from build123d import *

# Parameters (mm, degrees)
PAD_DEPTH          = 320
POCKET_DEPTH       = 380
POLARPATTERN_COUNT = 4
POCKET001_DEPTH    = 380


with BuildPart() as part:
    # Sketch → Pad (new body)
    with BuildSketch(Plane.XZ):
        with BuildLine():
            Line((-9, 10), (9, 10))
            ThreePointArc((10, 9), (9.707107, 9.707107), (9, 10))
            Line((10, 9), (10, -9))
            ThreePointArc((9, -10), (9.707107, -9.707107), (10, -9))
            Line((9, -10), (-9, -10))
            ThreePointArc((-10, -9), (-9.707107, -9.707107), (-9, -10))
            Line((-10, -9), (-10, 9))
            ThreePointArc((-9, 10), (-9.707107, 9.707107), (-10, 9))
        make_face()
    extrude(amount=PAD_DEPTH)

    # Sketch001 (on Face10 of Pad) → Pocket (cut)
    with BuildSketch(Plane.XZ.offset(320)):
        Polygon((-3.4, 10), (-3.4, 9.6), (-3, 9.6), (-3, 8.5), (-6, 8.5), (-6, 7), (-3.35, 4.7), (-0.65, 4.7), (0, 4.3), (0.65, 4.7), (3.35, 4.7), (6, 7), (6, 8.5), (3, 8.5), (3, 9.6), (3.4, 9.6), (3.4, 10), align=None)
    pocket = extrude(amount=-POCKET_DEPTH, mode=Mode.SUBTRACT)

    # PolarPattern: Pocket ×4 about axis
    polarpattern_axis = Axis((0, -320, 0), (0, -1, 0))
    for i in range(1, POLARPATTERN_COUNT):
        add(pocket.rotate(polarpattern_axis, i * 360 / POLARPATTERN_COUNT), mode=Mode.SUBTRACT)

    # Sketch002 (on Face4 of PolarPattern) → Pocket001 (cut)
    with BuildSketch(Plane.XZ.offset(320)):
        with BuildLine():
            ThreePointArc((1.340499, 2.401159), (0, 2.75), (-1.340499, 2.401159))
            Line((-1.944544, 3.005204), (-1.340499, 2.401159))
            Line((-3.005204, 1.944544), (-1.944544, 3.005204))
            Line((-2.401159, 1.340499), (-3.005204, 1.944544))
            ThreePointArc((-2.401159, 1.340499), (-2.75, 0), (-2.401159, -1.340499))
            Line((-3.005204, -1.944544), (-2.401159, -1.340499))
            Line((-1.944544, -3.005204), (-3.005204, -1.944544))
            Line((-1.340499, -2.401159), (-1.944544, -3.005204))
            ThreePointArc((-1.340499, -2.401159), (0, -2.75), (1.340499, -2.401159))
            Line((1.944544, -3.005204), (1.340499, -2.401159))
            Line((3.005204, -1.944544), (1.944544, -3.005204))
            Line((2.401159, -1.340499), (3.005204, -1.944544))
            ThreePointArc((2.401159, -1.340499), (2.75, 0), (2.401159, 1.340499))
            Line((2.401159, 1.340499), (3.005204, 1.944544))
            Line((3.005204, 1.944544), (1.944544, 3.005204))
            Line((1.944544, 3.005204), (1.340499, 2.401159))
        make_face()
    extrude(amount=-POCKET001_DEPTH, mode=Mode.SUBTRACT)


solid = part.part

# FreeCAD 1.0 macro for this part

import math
import FreeCAD as App
import Part
import Sketcher


def add_polygon(sketch, points):
    """Adds a closed chain of lines whose ends are joined by coincident constraints."""
    first, n = sketch.GeometryCount, len(points)
    for a, b in zip(points, points[1:] + points[:1]):
        sketch.addGeometry(Part.LineSegment(App.Vector(*a, 0), App.Vector(*b, 0)), False)
    for i in range(n):
        sketch.addConstraint(Sketcher.Constraint("Coincident", first + i, 2, first + (i + 1) % n, 1))

doc = App.newDocument("Part")
body = doc.addObject("PartDesign::Body", "Body")

# Sketch on XZ plane
sketch1 = body.newObject("Sketcher::SketchObject", "Sketch")
sketch1.AttachmentSupport = (doc.getObject("XZ_Plane"), [""])
sketch1.MapMode = "FlatFace"
sketch1.addGeometry(Part.LineSegment(App.Vector(9, 10, 0), App.Vector(-9, 10, 0)), False)
sketch1.addGeometry(Part.ArcOfCircle(Part.Circle(App.Vector(-9.000001, 9.000001, 0), App.Vector(0, 0, 1), 0.999999), math.radians(89.999957), math.radians(180.000043)), False)
sketch1.addGeometry(Part.LineSegment(App.Vector(-10, 9, 0), App.Vector(-10, -9, 0)), False)
sketch1.addGeometry(Part.ArcOfCircle(Part.Circle(App.Vector(-9.000001, -9.000001, 0), App.Vector(0, 0, 1), 0.999999), math.radians(179.999957), math.radians(270.000043)), False)
sketch1.addGeometry(Part.LineSegment(App.Vector(-9, -10, 0), App.Vector(9, -10, 0)), False)
sketch1.addGeometry(Part.ArcOfCircle(Part.Circle(App.Vector(9.000001, -9.000001, 0), App.Vector(0, 0, 1), 0.999999), math.radians(-90.000043), math.radians(0.000043)), False)
sketch1.addGeometry(Part.LineSegment(App.Vector(10, -9, 0), App.Vector(10, 9, 0)), False)
sketch1.addGeometry(Part.ArcOfCircle(Part.Circle(App.Vector(9.000001, 9.000001, 0), App.Vector(0, 0, 1), 0.999999), math.radians(-0.000043), math.radians(90.000043)), False)
sketch1.addConstraint(Sketcher.Constraint("Tangent", 0, 2, 1, 1))
sketch1.addConstraint(Sketcher.Constraint("Tangent", 1, 2, 2, 1))
sketch1.addConstraint(Sketcher.Constraint("Tangent", 2, 2, 3, 1))
sketch1.addConstraint(Sketcher.Constraint("Tangent", 3, 2, 4, 1))
sketch1.addConstraint(Sketcher.Constraint("Tangent", 4, 2, 5, 1))
sketch1.addConstraint(Sketcher.Constraint("Tangent", 5, 2, 6, 1))
sketch1.addConstraint(Sketcher.Constraint("Tangent", 6, 2, 7, 1))
sketch1.addConstraint(Sketcher.Constraint("Tangent", 7, 2, 0, 1))
sketch1.addConstraint(Sketcher.Constraint("Horizontal", 0))
sketch1.addConstraint(Sketcher.Constraint("Vertical", 2))
sketch1.addConstraint(Sketcher.Constraint("Horizontal", 4))
sketch1.addConstraint(Sketcher.Constraint("Vertical", 6))
sketch1.addConstraint(Sketcher.Constraint("Equal", 1, 3))
sketch1.addConstraint(Sketcher.Constraint("Equal", 3, 5))
sketch1.addConstraint(Sketcher.Constraint("Equal", 5, 7))
sketch1.addConstraint(Sketcher.Constraint("Symmetric", 1, 3, 5, 3, -1, 1))
sketch1.addConstraint(Sketcher.Constraint("Equal", 4, 2))
sketch1.addConstraint(Sketcher.Constraint("Radius", 1, 0.999999))
sketch1.addConstraint(Sketcher.Constraint("DistanceX", 0, 2, 0, 1, 18.0))
pad1 = body.newObject("PartDesign::Pad", "Pad")
pad1.Profile = sketch1
pad1.Length = 320

# Sketch on XZ plane
sketch2 = body.newObject("Sketcher::SketchObject", "Sketch001")
sketch2.AttachmentSupport = (doc.getObject("XZ_Plane"), [""])
sketch2.MapMode = "FlatFace"
sketch2.AttachmentOffset = App.Placement(App.Vector(0, 0, 320), App.Rotation())
add_polygon(sketch2, [(-3.4, 10), (-3.4, 9.6), (-3, 9.6), (-3, 8.5), (-6, 8.5), (-6, 7), (-3.35, 4.7), (-0.65, 4.7), (0, 4.3), (0.65, 4.7), (3.35, 4.7), (6, 7), (6, 8.5), (3, 8.5), (3, 9.6), (3.4, 9.6), (3.4, 10)])  # lines 0-16
sketch2.addConstraint(Sketcher.Constraint("Vertical", 0))
sketch2.addConstraint(Sketcher.Constraint("Horizontal", 1))
sketch2.addConstraint(Sketcher.Constraint("Vertical", 2))
sketch2.addConstraint(Sketcher.Constraint("Horizontal", 3))
sketch2.addConstraint(Sketcher.Constraint("Vertical", 4))
sketch2.addConstraint(Sketcher.Constraint("Horizontal", 6))
sketch2.addConstraint(Sketcher.Constraint("Horizontal", 9))
sketch2.addConstraint(Sketcher.Constraint("Vertical", 11))
sketch2.addConstraint(Sketcher.Constraint("Horizontal", 12))
sketch2.addConstraint(Sketcher.Constraint("Vertical", 13))
sketch2.addConstraint(Sketcher.Constraint("Horizontal", 14))
sketch2.addConstraint(Sketcher.Constraint("Vertical", 15))
sketch2.addConstraint(Sketcher.Constraint("Horizontal", 16))
sketch2.addConstraint(Sketcher.Constraint("Symmetric", 6, 2, 8, 2, -2))
sketch2.addConstraint(Sketcher.Constraint("Symmetric", 4, 2, 10, 2, -2))
sketch2.addConstraint(Sketcher.Constraint("Symmetric", 2, 2, 12, 2, -2))
sketch2.addConstraint(Sketcher.Constraint("Symmetric", 0, 2, 14, 2, -2))
sketch2.addConstraint(Sketcher.Constraint("PointOnObject", 7, 2, -2))
sketch2.addConstraint(Sketcher.Constraint("Equal", 6, 9))
sketch2.addConstraint(Sketcher.Constraint("Equal", 14, 0))
sketch2.addConstraint(Sketcher.Constraint("DistanceX", 3, 2, 3, 1, 3.0))
sketch2.addConstraint(Sketcher.Constraint("DistanceX", 1, 1, 1, 2, 0.4))
sketch2.addConstraint(Sketcher.Constraint("DistanceX", 6, 1, 6, 2, 2.7))
sketch2.addConstraint(Sketcher.Constraint("DistanceX", 16, 2, 16, 1, 6.8))
sketch2.addConstraint(Sketcher.Constraint("DistanceY", 2, 2, 2, 1, 1.1))
sketch2.addConstraint(Sketcher.Constraint("DistanceY", 4, 2, 4, 1, 1.5))
sketch2.addConstraint(Sketcher.Constraint("DistanceY", -1, 1, 4, 2, 7.0))
sketch2.addConstraint(Sketcher.Constraint("DistanceX", 5, 2, 8, 2, 4.0))
sketch2.addConstraint(Sketcher.Constraint("DistanceY", -1, 1, 5, 2, 4.7))
sketch2.addConstraint(Sketcher.Constraint("DistanceY", -1, 1, 7, 2, 4.3))
pocket1 = body.newObject("PartDesign::Pocket", "Pocket")
pocket1.Profile = sketch2
pocket1.Length = 380
doc.recompute()

polarpattern = body.newObject("PartDesign::PolarPattern", "PolarPattern")
polarpattern.Originals = [pocket1]
polarpattern.Axis = (doc.getObject("Y_Axis"), [""])
polarpattern.Angle = 360
polarpattern.Occurrences = 4
body.Tip = polarpattern

# Sketch on XZ plane
sketch3 = body.newObject("Sketcher::SketchObject", "Sketch002")
sketch3.AttachmentSupport = (doc.getObject("XZ_Plane"), [""])
sketch3.MapMode = "FlatFace"
sketch3.AttachmentOffset = App.Placement(App.Vector(0, 0, 320), App.Rotation())
sketch3.addGeometry(Part.ArcOfCircle(Part.Circle(App.Vector(0, -0.000003, 0), App.Vector(0, 0, 1), 2.750003), math.radians(60.826646), math.radians(119.173354)), False)
sketch3.addGeometry(Part.LineSegment(App.Vector(-1.340499, 2.401159, 0), App.Vector(-1.944544, 3.005204, 0)), False)
sketch3.addGeometry(Part.LineSegment(App.Vector(-1.944544, 3.005204, 0), App.Vector(-3.005204, 1.944544, 0)), False)
sketch3.addGeometry(Part.LineSegment(App.Vector(-3.005204, 1.944544, 0), App.Vector(-2.401159, 1.340499, 0)), False)
sketch3.addGeometry(Part.ArcOfCircle(Part.Circle(App.Vector(0.000003, 0, 0), App.Vector(0, 0, 1), 2.750003), math.radians(150.826646), math.radians(209.173354)), False)
sketch3.addGeometry(Part.LineSegment(App.Vector(-2.401159, -1.340499, 0), App.Vector(-3.005204, -1.944544, 0)), False)
sketch3.addGeometry(Part.LineSegment(App.Vector(-3.005204, -1.944544, 0), App.Vector(-1.944544, -3.005204, 0)), False)
sketch3.addGeometry(Part.LineSegment(App.Vector(-1.944544, -3.005204, 0), App.Vector(-1.340499, -2.401159, 0)), False)
sketch3.addGeometry(Part.ArcOfCircle(Part.Circle(App.Vector(0, 0.000003, 0), App.Vector(0, 0, 1), 2.750003), math.radians(-119.173354), math.radians(-60.826646)), False)
sketch3.addGeometry(Part.LineSegment(App.Vector(1.340499, -2.401159, 0), App.Vector(1.944544, -3.005204, 0)), False)
sketch3.addGeometry(Part.LineSegment(App.Vector(1.944544, -3.005204, 0), App.Vector(3.005204, -1.944544, 0)), False)
sketch3.addGeometry(Part.LineSegment(App.Vector(3.005204, -1.944544, 0), App.Vector(2.401159, -1.340499, 0)), False)
sketch3.addGeometry(Part.ArcOfCircle(Part.Circle(App.Vector(-0.000003, 0, 0), App.Vector(0, 0, 1), 2.750003), math.radians(-29.173354), math.radians(29.173354)), False)
sketch3.addGeometry(Part.LineSegment(App.Vector(2.401159, 1.340499, 0), App.Vector(3.005204, 1.944544, 0)), False)
sketch3.addGeometry(Part.LineSegment(App.Vector(3.005204, 1.944544, 0), App.Vector(1.944544, 3.005204, 0)), False)
sketch3.addGeometry(Part.LineSegment(App.Vector(1.944544, 3.005204, 0), App.Vector(1.340499, 2.401159, 0)), False)
sketch3.addConstraint(Sketcher.Constraint("Coincident", 0, 2, 1, 1))
sketch3.addConstraint(Sketcher.Constraint("Coincident", 1, 2, 2, 1))
sketch3.addConstraint(Sketcher.Constraint("Coincident", 2, 2, 3, 1))
sketch3.addConstraint(Sketcher.Constraint("Coincident", 3, 2, 4, 1))
sketch3.addConstraint(Sketcher.Constraint("Coincident", 4, 2, 5, 1))
sketch3.addConstraint(Sketcher.Constraint("Coincident", 5, 2, 6, 1))
sketch3.addConstraint(Sketcher.Constraint("Coincident", 6, 2, 7, 1))
sketch3.addConstraint(Sketcher.Constraint("Coincident", 7, 2, 8, 1))
sketch3.addConstraint(Sketcher.Constraint("Coincident", 8, 2, 9, 1))
sketch3.addConstraint(Sketcher.Constraint("Coincident", 9, 2, 10, 1))
sketch3.addConstraint(Sketcher.Constraint("Coincident", 10, 2, 11, 1))
sketch3.addConstraint(Sketcher.Constraint("Coincident", 11, 2, 12, 1))
sketch3.addConstraint(Sketcher.Constraint("Coincident", 12, 2, 13, 1))
sketch3.addConstraint(Sketcher.Constraint("Coincident", 13, 2, 14, 1))
sketch3.addConstraint(Sketcher.Constraint("Coincident", 14, 2, 15, 1))
sketch3.addConstraint(Sketcher.Constraint("Coincident", 15, 2, 0, 1))
sketch3.addConstraint(Sketcher.Constraint("Coincident", 0, 3, -1, 1))
sketch3.addConstraint(Sketcher.Constraint("Coincident", 4, 3, -1, 1))
sketch3.addConstraint(Sketcher.Constraint("Coincident", 8, 3, -1, 1))
sketch3.addConstraint(Sketcher.Constraint("Coincident", 12, 3, -1, 1))
sketch3.addConstraint(Sketcher.Constraint("Equal", 0, 4))
sketch3.addConstraint(Sketcher.Constraint("Equal", 4, 8))
sketch3.addConstraint(Sketcher.Constraint("Equal", 8, 12))
sketch3.addConstraint(Sketcher.Constraint("Symmetric", 1, 2, 9, 2, -1, 1))
sketch3.addConstraint(Sketcher.Constraint("Symmetric", 2, 2, 10, 2, -1, 1))
sketch3.addConstraint(Sketcher.Constraint("Symmetric", 5, 2, 13, 2, -1, 1))
sketch3.addConstraint(Sketcher.Constraint("Symmetric", 6, 2, 14, 2, -1, 1))
sketch3.addConstraint(Sketcher.Constraint("Symmetric", 6, 2, 9, 2, -2))
sketch3.addConstraint(Sketcher.Constraint("Symmetric", 5, 2, 10, 2, -2))
sketch3.addConstraint(Sketcher.Constraint("Perpendicular", 1, 2))
sketch3.addConstraint(Sketcher.Constraint("Perpendicular", 2, 3))
sketch3.addConstraint(Sketcher.Constraint("Perpendicular", 3, 5))
sketch3.addConstraint(Sketcher.Constraint("Perpendicular", 5, 6))
sketch3.addConstraint(Sketcher.Constraint("Perpendicular", 6, 7))
sketch3.addConstraint(Sketcher.Constraint("Perpendicular", 7, 9))
sketch3.addConstraint(Sketcher.Constraint("Perpendicular", 10, 11))
sketch3.addConstraint(Sketcher.Constraint("Perpendicular", 11, 13))
sketch3.addConstraint(Sketcher.Constraint("Perpendicular", 14, 15))
sketch3.addConstraint(Sketcher.Constraint("Equal", 1, 3))
sketch3.addConstraint(Sketcher.Constraint("Distance", 2, 1.5))
sketch3.addConstraint(Sketcher.Constraint("Radius", 0, 2.750003))
sketch3.addConstraint(Sketcher.Constraint("DistanceY", 8, 3, 1, 2, 3.005201))
pocket2 = body.newObject("PartDesign::Pocket", "Pocket001")
pocket2.Profile = sketch3
pocket2.Length = 380

doc.recompute()
